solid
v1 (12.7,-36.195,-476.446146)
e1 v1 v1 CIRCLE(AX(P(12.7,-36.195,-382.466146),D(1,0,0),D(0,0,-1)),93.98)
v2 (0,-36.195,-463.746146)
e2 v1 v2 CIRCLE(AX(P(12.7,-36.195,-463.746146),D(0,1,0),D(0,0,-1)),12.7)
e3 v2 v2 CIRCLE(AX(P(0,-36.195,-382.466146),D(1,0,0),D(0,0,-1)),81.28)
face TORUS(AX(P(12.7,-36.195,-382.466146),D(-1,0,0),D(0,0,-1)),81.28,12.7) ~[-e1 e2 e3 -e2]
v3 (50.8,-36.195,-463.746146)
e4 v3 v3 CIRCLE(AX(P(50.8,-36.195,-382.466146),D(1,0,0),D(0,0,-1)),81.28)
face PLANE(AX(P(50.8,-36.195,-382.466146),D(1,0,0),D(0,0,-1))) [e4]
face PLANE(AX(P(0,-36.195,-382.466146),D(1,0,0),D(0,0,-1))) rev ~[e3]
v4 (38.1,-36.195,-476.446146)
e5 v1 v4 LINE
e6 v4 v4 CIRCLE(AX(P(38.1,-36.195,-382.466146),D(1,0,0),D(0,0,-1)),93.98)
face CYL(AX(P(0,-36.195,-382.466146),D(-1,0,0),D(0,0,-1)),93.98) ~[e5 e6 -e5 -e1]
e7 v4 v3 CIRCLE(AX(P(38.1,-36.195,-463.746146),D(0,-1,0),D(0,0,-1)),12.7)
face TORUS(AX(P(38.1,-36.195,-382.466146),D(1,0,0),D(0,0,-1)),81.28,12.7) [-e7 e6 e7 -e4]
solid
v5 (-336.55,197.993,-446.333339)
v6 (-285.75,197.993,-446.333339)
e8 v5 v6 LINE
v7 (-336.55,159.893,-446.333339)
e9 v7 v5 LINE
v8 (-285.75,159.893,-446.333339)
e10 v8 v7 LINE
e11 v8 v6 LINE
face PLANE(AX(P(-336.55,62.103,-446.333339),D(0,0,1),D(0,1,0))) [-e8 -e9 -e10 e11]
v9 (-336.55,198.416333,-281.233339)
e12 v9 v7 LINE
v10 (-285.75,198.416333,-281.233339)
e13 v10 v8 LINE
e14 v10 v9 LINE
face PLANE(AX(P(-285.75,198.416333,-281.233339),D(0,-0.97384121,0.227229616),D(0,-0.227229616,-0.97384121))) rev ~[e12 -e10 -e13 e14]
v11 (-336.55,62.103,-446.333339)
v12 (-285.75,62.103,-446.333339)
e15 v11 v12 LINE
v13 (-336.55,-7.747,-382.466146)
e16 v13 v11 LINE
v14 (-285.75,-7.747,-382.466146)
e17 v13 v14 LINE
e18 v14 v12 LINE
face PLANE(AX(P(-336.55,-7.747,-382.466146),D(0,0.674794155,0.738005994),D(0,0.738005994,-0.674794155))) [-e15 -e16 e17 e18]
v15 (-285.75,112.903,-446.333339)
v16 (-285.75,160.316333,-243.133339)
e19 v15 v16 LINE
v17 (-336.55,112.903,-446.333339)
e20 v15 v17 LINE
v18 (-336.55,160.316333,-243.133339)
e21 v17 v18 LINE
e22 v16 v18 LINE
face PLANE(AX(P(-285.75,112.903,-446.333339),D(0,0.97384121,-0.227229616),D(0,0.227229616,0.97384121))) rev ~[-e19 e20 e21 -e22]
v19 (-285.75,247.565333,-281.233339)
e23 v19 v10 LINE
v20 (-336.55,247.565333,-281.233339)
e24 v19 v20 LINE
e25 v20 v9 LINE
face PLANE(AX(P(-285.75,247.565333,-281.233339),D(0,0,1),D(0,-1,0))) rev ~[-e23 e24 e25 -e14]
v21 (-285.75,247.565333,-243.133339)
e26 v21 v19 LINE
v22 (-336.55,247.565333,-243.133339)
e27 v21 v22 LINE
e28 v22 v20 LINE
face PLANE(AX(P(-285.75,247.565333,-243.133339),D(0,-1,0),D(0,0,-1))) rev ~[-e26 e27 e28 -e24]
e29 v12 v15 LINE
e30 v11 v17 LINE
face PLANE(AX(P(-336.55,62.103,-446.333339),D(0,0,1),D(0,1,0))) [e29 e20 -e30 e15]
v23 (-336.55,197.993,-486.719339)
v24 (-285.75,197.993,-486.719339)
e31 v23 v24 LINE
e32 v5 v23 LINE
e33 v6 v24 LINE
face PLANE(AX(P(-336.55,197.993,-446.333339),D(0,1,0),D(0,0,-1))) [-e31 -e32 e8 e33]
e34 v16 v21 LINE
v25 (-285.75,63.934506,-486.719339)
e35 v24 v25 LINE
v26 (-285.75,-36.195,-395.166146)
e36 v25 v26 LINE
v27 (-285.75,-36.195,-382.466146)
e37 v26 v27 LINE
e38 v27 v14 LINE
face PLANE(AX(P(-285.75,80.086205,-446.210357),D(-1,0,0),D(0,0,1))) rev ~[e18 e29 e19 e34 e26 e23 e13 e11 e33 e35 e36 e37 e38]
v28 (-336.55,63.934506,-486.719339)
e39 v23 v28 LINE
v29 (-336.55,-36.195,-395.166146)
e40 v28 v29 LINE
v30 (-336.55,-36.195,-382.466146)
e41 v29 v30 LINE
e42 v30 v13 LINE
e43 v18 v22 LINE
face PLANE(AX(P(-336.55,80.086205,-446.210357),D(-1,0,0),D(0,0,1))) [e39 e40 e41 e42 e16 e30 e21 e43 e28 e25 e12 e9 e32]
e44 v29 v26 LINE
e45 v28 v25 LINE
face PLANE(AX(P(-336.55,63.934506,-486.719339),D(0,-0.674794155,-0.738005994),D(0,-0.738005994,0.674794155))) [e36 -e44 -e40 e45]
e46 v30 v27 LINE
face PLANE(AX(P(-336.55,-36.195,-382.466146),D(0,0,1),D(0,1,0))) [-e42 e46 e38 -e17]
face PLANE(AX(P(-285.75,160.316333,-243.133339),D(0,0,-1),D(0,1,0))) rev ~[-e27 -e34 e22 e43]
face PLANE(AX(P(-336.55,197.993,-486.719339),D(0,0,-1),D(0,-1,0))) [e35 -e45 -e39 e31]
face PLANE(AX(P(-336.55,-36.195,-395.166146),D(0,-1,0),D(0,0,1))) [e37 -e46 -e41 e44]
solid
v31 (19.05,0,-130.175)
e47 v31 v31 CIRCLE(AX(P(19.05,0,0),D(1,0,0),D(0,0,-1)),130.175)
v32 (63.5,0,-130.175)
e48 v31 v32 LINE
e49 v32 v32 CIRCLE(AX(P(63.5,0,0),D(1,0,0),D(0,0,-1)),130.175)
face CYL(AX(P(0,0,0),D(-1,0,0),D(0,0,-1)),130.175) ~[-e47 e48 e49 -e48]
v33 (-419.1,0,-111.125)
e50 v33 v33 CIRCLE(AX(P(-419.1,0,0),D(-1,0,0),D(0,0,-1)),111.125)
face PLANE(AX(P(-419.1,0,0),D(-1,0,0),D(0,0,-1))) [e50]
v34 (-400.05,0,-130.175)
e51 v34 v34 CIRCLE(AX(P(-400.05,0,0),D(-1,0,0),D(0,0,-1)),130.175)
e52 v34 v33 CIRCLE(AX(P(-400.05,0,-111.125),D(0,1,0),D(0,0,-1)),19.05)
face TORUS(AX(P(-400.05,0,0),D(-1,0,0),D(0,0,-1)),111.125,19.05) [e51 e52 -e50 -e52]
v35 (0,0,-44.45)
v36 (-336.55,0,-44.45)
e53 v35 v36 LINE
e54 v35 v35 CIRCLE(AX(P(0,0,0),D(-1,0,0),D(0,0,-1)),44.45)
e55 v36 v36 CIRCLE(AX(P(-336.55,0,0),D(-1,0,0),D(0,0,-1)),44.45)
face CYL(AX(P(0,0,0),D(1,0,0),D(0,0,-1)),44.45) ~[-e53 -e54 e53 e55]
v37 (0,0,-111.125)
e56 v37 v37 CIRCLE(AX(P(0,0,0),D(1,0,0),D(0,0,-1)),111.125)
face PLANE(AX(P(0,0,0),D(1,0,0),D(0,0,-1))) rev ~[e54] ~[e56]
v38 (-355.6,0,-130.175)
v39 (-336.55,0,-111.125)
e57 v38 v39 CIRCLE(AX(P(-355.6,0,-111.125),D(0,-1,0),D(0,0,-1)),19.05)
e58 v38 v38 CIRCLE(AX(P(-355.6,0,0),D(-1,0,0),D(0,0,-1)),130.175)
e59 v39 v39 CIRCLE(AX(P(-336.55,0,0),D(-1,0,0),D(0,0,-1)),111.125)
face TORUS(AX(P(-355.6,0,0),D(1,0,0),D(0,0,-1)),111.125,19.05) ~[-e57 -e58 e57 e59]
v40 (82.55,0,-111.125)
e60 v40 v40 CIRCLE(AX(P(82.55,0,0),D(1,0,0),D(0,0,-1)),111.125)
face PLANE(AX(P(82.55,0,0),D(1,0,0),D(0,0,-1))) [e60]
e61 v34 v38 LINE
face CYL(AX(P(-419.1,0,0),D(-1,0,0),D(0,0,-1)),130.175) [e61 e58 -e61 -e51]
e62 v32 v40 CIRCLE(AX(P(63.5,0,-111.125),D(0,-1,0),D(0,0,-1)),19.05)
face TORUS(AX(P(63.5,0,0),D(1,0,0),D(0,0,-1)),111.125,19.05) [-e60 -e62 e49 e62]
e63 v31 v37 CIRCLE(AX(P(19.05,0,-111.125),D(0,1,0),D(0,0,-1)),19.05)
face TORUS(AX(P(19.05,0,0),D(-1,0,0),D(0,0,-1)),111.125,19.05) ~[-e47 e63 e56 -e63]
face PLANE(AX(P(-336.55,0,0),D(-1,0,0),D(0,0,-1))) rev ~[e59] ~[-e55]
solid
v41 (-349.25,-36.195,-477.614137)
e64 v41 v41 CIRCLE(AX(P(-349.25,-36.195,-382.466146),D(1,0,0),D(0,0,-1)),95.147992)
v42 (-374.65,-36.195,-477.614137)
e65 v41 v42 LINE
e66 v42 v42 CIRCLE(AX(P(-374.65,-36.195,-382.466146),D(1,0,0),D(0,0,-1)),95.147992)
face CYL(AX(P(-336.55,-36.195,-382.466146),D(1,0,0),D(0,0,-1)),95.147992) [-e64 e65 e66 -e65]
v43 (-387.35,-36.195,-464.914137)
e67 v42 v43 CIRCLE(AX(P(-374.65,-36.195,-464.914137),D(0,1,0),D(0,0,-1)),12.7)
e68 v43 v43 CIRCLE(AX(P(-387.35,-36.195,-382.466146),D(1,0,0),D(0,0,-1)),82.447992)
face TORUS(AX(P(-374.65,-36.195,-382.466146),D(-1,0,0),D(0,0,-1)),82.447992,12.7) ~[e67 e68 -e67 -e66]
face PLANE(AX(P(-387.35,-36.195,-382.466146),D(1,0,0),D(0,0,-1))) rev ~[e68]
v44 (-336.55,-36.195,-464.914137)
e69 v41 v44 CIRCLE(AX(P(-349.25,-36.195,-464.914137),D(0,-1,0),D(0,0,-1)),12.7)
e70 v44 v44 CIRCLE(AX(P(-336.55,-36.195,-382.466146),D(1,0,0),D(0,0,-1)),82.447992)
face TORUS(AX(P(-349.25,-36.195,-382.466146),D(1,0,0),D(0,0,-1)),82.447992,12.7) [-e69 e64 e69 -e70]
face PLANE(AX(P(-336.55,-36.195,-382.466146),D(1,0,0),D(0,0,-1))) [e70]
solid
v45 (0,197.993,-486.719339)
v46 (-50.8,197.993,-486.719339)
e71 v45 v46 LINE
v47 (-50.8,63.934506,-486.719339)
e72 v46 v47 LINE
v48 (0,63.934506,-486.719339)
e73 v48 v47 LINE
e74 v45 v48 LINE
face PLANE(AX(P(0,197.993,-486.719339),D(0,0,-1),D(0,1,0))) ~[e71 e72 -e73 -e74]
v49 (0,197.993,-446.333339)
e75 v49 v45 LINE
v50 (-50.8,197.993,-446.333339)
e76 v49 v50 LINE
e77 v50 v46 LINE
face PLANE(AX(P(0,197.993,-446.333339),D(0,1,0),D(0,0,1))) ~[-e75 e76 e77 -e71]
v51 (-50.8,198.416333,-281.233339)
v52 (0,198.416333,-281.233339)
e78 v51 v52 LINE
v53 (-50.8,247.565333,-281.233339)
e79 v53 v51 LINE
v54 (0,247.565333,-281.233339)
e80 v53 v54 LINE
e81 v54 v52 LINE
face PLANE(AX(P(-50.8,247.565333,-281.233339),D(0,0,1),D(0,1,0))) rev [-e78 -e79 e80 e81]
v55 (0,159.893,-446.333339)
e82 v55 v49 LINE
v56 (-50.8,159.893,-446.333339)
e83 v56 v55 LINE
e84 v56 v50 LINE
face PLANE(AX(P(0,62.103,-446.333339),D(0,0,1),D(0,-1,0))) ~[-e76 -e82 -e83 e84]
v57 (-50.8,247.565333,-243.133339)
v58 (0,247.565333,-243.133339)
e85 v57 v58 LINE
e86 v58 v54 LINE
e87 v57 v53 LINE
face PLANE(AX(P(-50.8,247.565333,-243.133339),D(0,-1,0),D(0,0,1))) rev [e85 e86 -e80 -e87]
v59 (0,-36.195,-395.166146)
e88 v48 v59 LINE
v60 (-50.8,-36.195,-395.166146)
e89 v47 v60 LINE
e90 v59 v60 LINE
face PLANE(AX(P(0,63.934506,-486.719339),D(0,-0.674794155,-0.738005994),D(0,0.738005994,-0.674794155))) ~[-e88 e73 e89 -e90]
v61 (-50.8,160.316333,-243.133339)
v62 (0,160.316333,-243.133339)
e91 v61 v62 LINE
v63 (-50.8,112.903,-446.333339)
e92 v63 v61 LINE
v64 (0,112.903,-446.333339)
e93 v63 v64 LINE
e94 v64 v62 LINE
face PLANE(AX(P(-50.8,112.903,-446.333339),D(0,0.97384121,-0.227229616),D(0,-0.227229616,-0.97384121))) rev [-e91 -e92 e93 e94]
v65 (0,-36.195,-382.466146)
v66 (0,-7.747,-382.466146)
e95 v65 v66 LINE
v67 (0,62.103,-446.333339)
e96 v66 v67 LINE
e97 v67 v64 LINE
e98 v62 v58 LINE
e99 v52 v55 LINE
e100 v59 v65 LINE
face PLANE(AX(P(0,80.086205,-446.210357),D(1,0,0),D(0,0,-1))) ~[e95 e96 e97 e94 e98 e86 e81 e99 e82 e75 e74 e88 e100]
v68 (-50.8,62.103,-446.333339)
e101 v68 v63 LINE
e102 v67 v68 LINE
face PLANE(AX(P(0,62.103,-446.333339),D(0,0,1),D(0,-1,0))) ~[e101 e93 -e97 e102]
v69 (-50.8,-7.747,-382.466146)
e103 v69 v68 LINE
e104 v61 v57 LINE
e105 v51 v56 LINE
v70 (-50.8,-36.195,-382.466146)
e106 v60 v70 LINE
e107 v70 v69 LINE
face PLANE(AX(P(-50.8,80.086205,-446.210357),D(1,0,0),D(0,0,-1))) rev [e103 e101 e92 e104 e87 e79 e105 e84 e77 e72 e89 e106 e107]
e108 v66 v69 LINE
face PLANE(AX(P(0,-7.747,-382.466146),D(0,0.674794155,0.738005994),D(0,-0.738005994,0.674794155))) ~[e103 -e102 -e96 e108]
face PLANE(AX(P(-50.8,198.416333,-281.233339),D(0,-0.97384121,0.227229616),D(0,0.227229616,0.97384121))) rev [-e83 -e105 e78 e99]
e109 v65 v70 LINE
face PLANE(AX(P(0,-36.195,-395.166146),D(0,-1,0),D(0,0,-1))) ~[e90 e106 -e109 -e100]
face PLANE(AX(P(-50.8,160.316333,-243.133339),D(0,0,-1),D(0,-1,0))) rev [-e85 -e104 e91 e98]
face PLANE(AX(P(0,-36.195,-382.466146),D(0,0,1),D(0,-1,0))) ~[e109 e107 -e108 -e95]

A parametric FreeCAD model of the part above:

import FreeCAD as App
import Part
import Sketcher
from FreeCAD import Vector
Q = App.Units.Quantity


def edges_at(feature, points):
    """Names of the edges that pass closest to the given points."""
    edges = feature.Shape.Edges
    near = lambda p: min(range(len(edges)), key=lambda i: edges[i].distToShape(Part.Vertex(*p))[0])
    return sorted({f"Edge{near(p) + 1}" for p in points})

doc = App.newDocument("Part")
body = doc.addObject("PartDesign::Body", "Body")

# Sketch on YZ plane
sketch1 = body.newObject("Sketcher::SketchObject", "Sketch")
sketch1.AttachmentSupport = (doc.getObject("YZ_Plane"), [""])
sketch1.MapMode = "FlatFace"
sketch1.addGeometry(Part.Circle(Vector(0, 0, 0), Vector(0, 0, 1), 130.175), False)
sketch1.addConstraint(Sketcher.Constraint("Coincident", 0, 3, -1, 1))
sketch1.addConstraint(Sketcher.Constraint("Diameter", 0, Q("10.25 in")))
pad1 = body.newObject("PartDesign::Pad", "Pad")
pad1.Profile = sketch1
pad1.Length = Q("3.25 in")
doc.recompute()

fillet = body.newObject("PartDesign::Fillet", "Fillet")
fillet.Base = (pad1, edges_at(pad1, [(0, 0, 130.175), (82.55, 0, 130.175)]))
fillet.Radius = Q("0.75 in")

# Sketch on YZ plane
sketch2 = body.newObject("Sketcher::SketchObject", "Sketch001")
sketch2.AttachmentSupport = (doc.getObject("YZ_Plane"), [""])
sketch2.MapMode = "FlatFace"
sketch2.addGeometry(Part.Circle(Vector(0, 0, 0), Vector(0, 0, 1), 44.45), False)
sketch2.addConstraint(Sketcher.Constraint("Coincident", 0, 3, -1, 1))
sketch2.addConstraint(Sketcher.Constraint("Diameter", 0, Q("3.5 in")))
pad2 = body.newObject("PartDesign::Pad", "Pad001")
pad2.Profile = sketch2
pad2.Length = Q("13.25 in")
pad2.Reversed = True

# Sketch on YZ plane
sketch3 = body.newObject("Sketcher::SketchObject", "Sketch002")
sketch3.AttachmentSupport = (doc.getObject("YZ_Plane"), [""])
sketch3.MapMode = "FlatFace"
sketch3.AttachmentOffset = App.Placement(Vector(0, 0, -16.5 * 25.4), App.Rotation())
sketch3.addGeometry(Part.Circle(Vector(0, 0, 0), Vector(0, 0, 1), 130.175), False)
sketch3.addConstraint(Sketcher.Constraint("Coincident", 0, 3, -1, 1))
sketch3.addConstraint(Sketcher.Constraint("Diameter", 0, Q("10.25 in")))
pad3 = body.newObject("PartDesign::Pad", "Pad002")
pad3.Profile = sketch3
pad3.Length = Q("3.25 in")
doc.recompute()

fillet2 = body.newObject("PartDesign::Fillet", "Fillet001")
fillet2.Base = (pad3, edges_at(pad3, [(-336.55, 0, 130.175), (-419.1, 0, 130.175)]))
fillet2.Radius = Q("0.75 in")
body2 = doc.addObject("PartDesign::Body", "Body001")

# Sketch on YZ plane
sketch4 = body2.newObject("Sketcher::SketchObject", "Sketch003")
sketch4.AttachmentSupport = (doc.getObject("YZ_Plane001"), [""])
sketch4.MapMode = "FlatFace"
sketch4.addGeometry(Part.Circle(Vector(-36.195, -382.466146, 0), Vector(0, 0, 1), 93.98), False)
sketch4.addConstraint(Sketcher.Constraint("Diameter", 0, Q("7.4 in")))
sketch4.addConstraint(Sketcher.Constraint("DistanceX", 0, 3, -1, 1, Q("1.425 in")))
sketch4.addConstraint(Sketcher.Constraint("DistanceY", 0, 3, -1, 1, Q("382.466146 mm")))
pad4 = body2.newObject("PartDesign::Pad", "Pad003")
pad4.Profile = sketch4
pad4.Length = Q("2 in")
doc.recompute()

fillet3 = body2.newObject("PartDesign::Fillet", "Fillet002")
fillet3.Base = (pad4, edges_at(pad4, [(0, -36.195, -288.486), (50.8, -36.195, -288.486)]))
fillet3.Radius = Q("0.5 in")
body3 = doc.addObject("PartDesign::Body", "Body002")

# Sketch on YZ plane
sketch5 = body3.newObject("Sketcher::SketchObject", "Sketch004")
sketch5.AttachmentSupport = (doc.getObject("YZ_Plane002"), [""])
sketch5.MapMode = "FlatFace"
sketch5.AttachmentOffset = App.Placement(Vector(0, 0, -13.25 * 25.4), App.Rotation())
sketch5.addGeometry(Part.Circle(Vector(-36.195, -382.466146, 0), Vector(0, 0, 1), 95.147992), False)
sketch5.addConstraint(Sketcher.Constraint("DistanceX", 0, 3, -1, 1, Q("1.425 in")))
sketch5.addConstraint(Sketcher.Constraint("Diameter", 0, Q("190.295983 mm")))
sketch5.addConstraint(Sketcher.Constraint("DistanceY", 0, 3, -1, 1, Q("382.466146 mm")))
pad5 = body3.newObject("PartDesign::Pad", "Pad004")
pad5.Profile = sketch5
pad5.Length = Q("2 in")
pad5.Reversed = True
doc.recompute()

fillet4 = body3.newObject("PartDesign::Fillet", "Fillet003")
fillet4.Base = (pad5, edges_at(pad5, [(-336.55, -36.195, -287.318), (-387.35, -36.195, -287.318)]))
fillet4.Radius = Q("0.5 in")
body4 = doc.addObject("PartDesign::Body", "Body003")

# Sketch on YZ plane
sketch6 = body4.newObject("Sketcher::SketchObject", "Sketch005")
sketch6.AttachmentSupport = (doc.getObject("YZ_Plane003"), [""])
sketch6.MapMode = "FlatFace"
sketch6.AttachmentOffset = App.Placement(Vector(0, 0, -13.25 * 25.4), App.Rotation())
sketch6.addGeometry(Part.LineSegment(Vector(-7.747, -382.466146, 0), Vector(-36.195, -382.466146, 0)), False)
sketch6.addGeometry(Part.LineSegment(Vector(-36.195, -382.466146, 0), Vector(-36.195, -395.166146, 0)), False)
sketch6.addGeometry(Part.LineSegment(Vector(-36.195, -395.166146, 0), Vector(63.934506, -486.719339, 0)), False)
sketch6.addGeometry(Part.LineSegment(Vector(63.934506, -486.719339, 0), Vector(197.993, -486.719339, 0)), False)
sketch6.addGeometry(Part.LineSegment(Vector(197.993, -486.719339, 0), Vector(197.993, -446.333339, 0)), False)
sketch6.addGeometry(Part.LineSegment(Vector(197.993, -446.333339, 0), Vector(62.103, -446.333339, 0)), False)
sketch6.addGeometry(Part.LineSegment(Vector(62.103, -446.333339, 0), Vector(-7.747, -382.466146, 0)), False)
sketch6.addConstraint(Sketcher.Constraint("Coincident", 0, 2, 1, 1))
sketch6.addConstraint(Sketcher.Constraint("Coincident", 1, 2, 2, 1))
sketch6.addConstraint(Sketcher.Constraint("Coincident", 2, 2, 3, 1))
sketch6.addConstraint(Sketcher.Constraint("Coincident", 3, 2, 4, 1))
sketch6.addConstraint(Sketcher.Constraint("Coincident", 4, 2, 5, 1))
sketch6.addConstraint(Sketcher.Constraint("Coincident", 5, 2, 6, 1))
sketch6.addConstraint(Sketcher.Constraint("Coincident", 6, 2, 0, 1))
sketch6.addConstraint(Sketcher.Constraint("Horizontal", 0))
sketch6.addConstraint(Sketcher.Constraint("Vertical", 1))
sketch6.addConstraint(Sketcher.Constraint("Horizontal", 3))
sketch6.addConstraint(Sketcher.Constraint("Vertical", 4))
sketch6.addConstraint(Sketcher.Constraint("Horizontal", 5))
sketch6.addConstraint(Sketcher.Constraint("Parallel", 2, 6))
sketch6.addConstraint(Sketcher.Constraint("DistanceY", 1, 2, 1, 1, Q("0.5 in")))
sketch6.addConstraint(Sketcher.Constraint("DistanceX", 0, 2, 0, 1, Q("1.12 in")))
sketch6.addConstraint(Sketcher.Constraint("DistanceX", 5, 2, 5, 1, Q("5.35 in")))
sketch6.addConstraint(Sketcher.Constraint("DistanceY", 4, 1, 4, 2, Q("1.59 in")))
sketch6.addConstraint(Sketcher.Constraint("DistanceX", 6, 2, 4, 2, Q("8.1 in")))
sketch6.addConstraint(Sketcher.Constraint("DistanceX", 0, 2, -1, 1, Q("1.425 in")))
sketch6.addConstraint(Sketcher.Constraint("DistanceX", 3, 1, 3, 2, Q("134.058494 mm")))
sketch6.addConstraint(Sketcher.Constraint("DistanceY", 2, 2, -1, 1, Q("486.719339 mm")))
pad6 = body4.newObject("PartDesign::Pad", "Pad005")
pad6.Profile = sketch6
pad6.Length = Q("2 in")

# Sketch on YZ plane
sketch7 = body4.newObject("Sketcher::SketchObject", "Sketch006")
sketch7.AttachmentSupport = (doc.getObject("YZ_Plane003"), [""])
sketch7.MapMode = "FlatFace"
sketch7.AttachmentOffset = App.Placement(Vector(0, 0, -11.25 * 25.4), App.Rotation())
sketch7.addGeometry(Part.LineSegment(Vector(160.316333, -243.133339, 0), Vector(112.903, -446.333339, 0)), False)
sketch7.addGeometry(Part.LineSegment(Vector(112.903, -446.333339, 0), Vector(159.893, -446.333339, 0)), False)
sketch7.addGeometry(Part.LineSegment(Vector(159.893, -446.333339, 0), Vector(198.416333, -281.233339, 0)), False)
sketch7.addGeometry(Part.LineSegment(Vector(198.416333, -281.233339, 0), Vector(247.565333, -281.233339, 0)), False)
sketch7.addGeometry(Part.LineSegment(Vector(247.565333, -281.233339, 0), Vector(247.565333, -243.133339, 0)), False)
sketch7.addGeometry(Part.LineSegment(Vector(247.565333, -243.133339, 0), Vector(160.316333, -243.133339, 0)), False)
sketch7.addConstraint(Sketcher.Constraint("Coincident", 0, 2, 1, 1))
sketch7.addConstraint(Sketcher.Constraint("Coincident", 1, 2, 2, 1))
sketch7.addConstraint(Sketcher.Constraint("Coincident", 2, 2, 3, 1))
sketch7.addConstraint(Sketcher.Constraint("Coincident", 3, 2, 4, 1))
sketch7.addConstraint(Sketcher.Constraint("Coincident", 4, 2, 5, 1))
sketch7.addConstraint(Sketcher.Constraint("Coincident", 5, 2, 0, 1))
sketch7.addConstraint(Sketcher.Constraint("Horizontal", 1))
sketch7.addConstraint(Sketcher.Constraint("Horizontal", 3))
sketch7.addConstraint(Sketcher.Constraint("Vertical", 4))
sketch7.addConstraint(Sketcher.Constraint("Horizontal", 5))
sketch7.addConstraint(Sketcher.Constraint("Parallel", 0, 2))
sketch7.addConstraint(Sketcher.Constraint("DistanceY", 4, 1, 4, 2, Q("1.5 in")))
sketch7.addConstraint(Sketcher.Constraint("DistanceY", 1, 2, 4, 2, Q("8 in")))
sketch7.addConstraint(Sketcher.Constraint("DistanceX", 1, 1, 1, 2, Q("1.85 in")))
sketch7.addConstraint(Sketcher.Constraint("DistanceX", 5, 2, 2, 2, Q("1.5 in")))
sketch7.addConstraint(Sketcher.Constraint("DistanceX", 3, 1, 3, 2, Q("1.935 in")))
sketch7.addConstraint(Sketcher.Constraint("DistanceX", -1, 1, 0, 2, Q("4.445 in")))
sketch7.addConstraint(Sketcher.Constraint("DistanceY", 0, 2, -1, 1, Q("446.333339 mm")))
pad7 = body4.newObject("PartDesign::Pad", "Pad006")
pad7.Profile = sketch7
pad7.Length = Q("2 in")
pad7.Reversed = True
body5 = doc.addObject("PartDesign::Body", "Body004")
doc.recompute()

mirroring = doc.addObject("Part::Mirroring", "Mirroring")
mirroring.Source = body4
mirroring.Base = Vector(-168.275, 0, 0)
mirroring.Normal = Vector(-1, 0, 0)
body5.BaseFeature = mirroring
doc.recompute()
mirroring.Visibility = False

doc.recompute()
